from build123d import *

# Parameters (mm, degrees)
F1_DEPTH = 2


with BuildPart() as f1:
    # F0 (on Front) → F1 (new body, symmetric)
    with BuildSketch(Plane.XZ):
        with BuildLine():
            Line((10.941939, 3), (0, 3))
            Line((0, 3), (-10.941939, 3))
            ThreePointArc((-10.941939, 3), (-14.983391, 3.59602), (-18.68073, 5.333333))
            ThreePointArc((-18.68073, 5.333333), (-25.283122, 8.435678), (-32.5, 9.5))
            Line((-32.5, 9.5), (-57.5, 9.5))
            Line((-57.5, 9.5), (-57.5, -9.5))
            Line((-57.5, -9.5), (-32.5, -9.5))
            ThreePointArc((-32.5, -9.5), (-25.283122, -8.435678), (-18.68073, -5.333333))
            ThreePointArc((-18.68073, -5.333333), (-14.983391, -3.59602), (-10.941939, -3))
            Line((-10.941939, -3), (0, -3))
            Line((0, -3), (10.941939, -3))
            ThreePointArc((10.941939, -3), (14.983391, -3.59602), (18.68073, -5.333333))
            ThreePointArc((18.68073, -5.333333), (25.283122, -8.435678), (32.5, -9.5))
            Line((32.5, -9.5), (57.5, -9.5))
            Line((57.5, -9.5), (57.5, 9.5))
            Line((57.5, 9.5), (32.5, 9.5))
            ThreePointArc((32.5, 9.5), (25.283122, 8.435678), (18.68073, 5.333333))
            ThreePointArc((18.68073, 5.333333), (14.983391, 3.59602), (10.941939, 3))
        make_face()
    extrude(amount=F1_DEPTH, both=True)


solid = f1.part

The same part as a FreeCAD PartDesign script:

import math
import FreeCAD as App
import Part
import Sketcher
from FreeCAD import Vector

doc = App.newDocument("Part")
params = doc.addObject("Spreadsheet::Sheet", "Params")
for row, (alias, value) in enumerate([
    ("sketch1_width", "25 mm"),
    ("sketch1_height", "19 mm"),
    ("pad1_length", "4 mm"),
], start=1):
    params.set(f"A{row}", alias)
    params.set(f"B{row}", "=" + value)
    params.setAlias(f"B{row}", alias)

body = doc.addObject("PartDesign::Body", "Body")

sketch1 = doc.addObject("Sketcher::SketchObject", "Sketch")
body.addObject(sketch1)
sketch1.AttachmentSupport = (doc.XZ_Plane, [""])
sketch1.MapMode = "FlatFace"
sketch1.addGeometry(Part.LineSegment(Vector(11, 3, 0), Vector(-11, 3, 0)), False)
sketch1.addGeometry(Part.ArcOfCircle(Part.Circle(Vector(-11, 17, 0), Vector(0, 0, 1), 14), math.radians(-124), math.radians(-90)), False)
sketch1.addGeometry(Part.ArcOfCircle(Part.Circle(Vector(-32, -15, 0), Vector(0, 0, 1), 25), math.radians(56), math.radians(90)), False)
sketch1.addGeometry(Part.LineSegment(Vector(-32, 10, 0), Vector(-58, 10, 0)), False)
sketch1.addGeometry(Part.LineSegment(Vector(-58, 10, 0), Vector(-58, -10, 0)), False)
sketch1.addGeometry(Part.LineSegment(Vector(-58, -10, 0), Vector(-32, -10, 0)), False)
sketch1.addGeometry(Part.ArcOfCircle(Part.Circle(Vector(-32, 15, 0), Vector(0, 0, 1), 25), math.radians(-90), math.radians(-56)), False)
sketch1.addGeometry(Part.ArcOfCircle(Part.Circle(Vector(-11, -17, 0), Vector(0, 0, 1), 14), math.radians(90), math.radians(124)), False)
sketch1.addGeometry(Part.LineSegment(Vector(-11, -3, 0), Vector(11, -3, 0)), False)
sketch1.addGeometry(Part.ArcOfCircle(Part.Circle(Vector(11, -17, 0), Vector(0, 0, 1), 14), math.radians(56), math.radians(90)), False)
sketch1.addGeometry(Part.ArcOfCircle(Part.Circle(Vector(32, 15, 0), Vector(0, 0, 1), 25), math.radians(-124), math.radians(-90)), False)
sketch1.addGeometry(Part.LineSegment(Vector(32, -10, 0), Vector(58, -10, 0)), False)
sketch1.addGeometry(Part.LineSegment(Vector(58, -10, 0), Vector(58, 10, 0)), False)
sketch1.addGeometry(Part.LineSegment(Vector(58, 10, 0), Vector(32, 10, 0)), False)
sketch1.addGeometry(Part.ArcOfCircle(Part.Circle(Vector(32, -15, 0), Vector(0, 0, 1), 25), math.radians(90), math.radians(124)), False)
sketch1.addGeometry(Part.ArcOfCircle(Part.Circle(Vector(11, 17, 0), Vector(0, 0, 1), 14), math.radians(-90), math.radians(-56)), False)
sketch1.addConstraint(Sketcher.Constraint("Tangent", 0, 2, 1, 2))
sketch1.addConstraint(Sketcher.Constraint("Tangent", 1, 1, 2, 1))
sketch1.addConstraint(Sketcher.Constraint("Tangent", 2, 2, 3, 1))
sketch1.addConstraint(Sketcher.Constraint("Coincident", 3, 2, 4, 1))
sketch1.addConstraint(Sketcher.Constraint("Coincident", 4, 2, 5, 1))
sketch1.addConstraint(Sketcher.Constraint("Tangent", 5, 2, 6, 1))
sketch1.addConstraint(Sketcher.Constraint("Tangent", 6, 2, 7, 2))
sketch1.addConstraint(Sketcher.Constraint("Tangent", 7, 1, 8, 1))
sketch1.addConstraint(Sketcher.Constraint("Tangent", 8, 2, 9, 2))
sketch1.addConstraint(Sketcher.Constraint("Tangent", 9, 1, 10, 1))
sketch1.addConstraint(Sketcher.Constraint("Tangent", 10, 2, 11, 1))
sketch1.addConstraint(Sketcher.Constraint("Coincident", 11, 2, 12, 1))
sketch1.addConstraint(Sketcher.Constraint("Coincident", 12, 2, 13, 1))
sketch1.addConstraint(Sketcher.Constraint("Tangent", 13, 2, 14, 1))
sketch1.addConstraint(Sketcher.Constraint("Tangent", 14, 2, 15, 2))
sketch1.addConstraint(Sketcher.Constraint("Tangent", 15, 1, 0, 1))
sketch1.addConstraint(Sketcher.Constraint("Horizontal", 0))
sketch1.addConstraint(Sketcher.Constraint("Horizontal", 3))
sketch1.addConstraint(Sketcher.Constraint("Vertical", 4))
sketch1.addConstraint(Sketcher.Constraint("Horizontal", 5))
sketch1.addConstraint(Sketcher.Constraint("Horizontal", 8))
sketch1.addConstraint(Sketcher.Constraint("Horizontal", 11))
sketch1.addConstraint(Sketcher.Constraint("Vertical", 12))
sketch1.addConstraint(Sketcher.Constraint("Horizontal", 13))
sketch1.addConstraint(Sketcher.Constraint("Equal", 2, 6))
sketch1.addConstraint(Sketcher.Constraint("Equal", 1, 7))
sketch1.addConstraint(Sketcher.Constraint("Equal", 7, 9))
sketch1.addConstraint(Sketcher.Constraint("Equal", 6, 10))
sketch1.addConstraint(Sketcher.Constraint("Equal", 10, 14))
sketch1.addConstraint(Sketcher.Constraint("Equal", 9, 15))
sketch1.addConstraint(Sketcher.Constraint("Symmetric", 1, 3, 9, 3, -1, 1))
sketch1.addConstraint(Sketcher.Constraint("Symmetric", 6, 3, 14, 3, -1, 1))
sketch1.addConstraint(Sketcher.Constraint("Symmetric", 3, 2, 11, 2, -1, 1))
sketch1.addConstraint(Sketcher.Constraint("Symmetric", 6, 3, 10, 3, -2))
sketch1.addConstraint(Sketcher.Constraint("DistanceX", 3, 2, 3, 1, 25.0))
sketch1.addConstraint(Sketcher.Constraint("DistanceY", 4, 2, 4, 1, 19.0))
sketch1.addConstraint(Sketcher.Constraint("DistanceY", -1, 1, 0, 2, 3.0))
sketch1.addConstraint(Sketcher.Constraint("DistanceX", 2, 3, -1, 1, 32.499998))
sketch1.addConstraint(Sketcher.Constraint("DistanceY", 6, 3, 1, 3, 1.499998))
sketch1.addConstraint(Sketcher.Constraint("Radius", 1, 13.999991))
sketch1.setExpression("Constraints[34]", "Params.sketch1_width")
sketch1.setExpression("Constraints[35]", "Params.sketch1_height")
pad1 = doc.addObject("PartDesign::Pad", "Pad")
body.addObject(pad1)
pad1.Profile = sketch1
pad1.setExpression("Length", "Params.pad1_length")
pad1.Midplane = True

doc.recompute()
